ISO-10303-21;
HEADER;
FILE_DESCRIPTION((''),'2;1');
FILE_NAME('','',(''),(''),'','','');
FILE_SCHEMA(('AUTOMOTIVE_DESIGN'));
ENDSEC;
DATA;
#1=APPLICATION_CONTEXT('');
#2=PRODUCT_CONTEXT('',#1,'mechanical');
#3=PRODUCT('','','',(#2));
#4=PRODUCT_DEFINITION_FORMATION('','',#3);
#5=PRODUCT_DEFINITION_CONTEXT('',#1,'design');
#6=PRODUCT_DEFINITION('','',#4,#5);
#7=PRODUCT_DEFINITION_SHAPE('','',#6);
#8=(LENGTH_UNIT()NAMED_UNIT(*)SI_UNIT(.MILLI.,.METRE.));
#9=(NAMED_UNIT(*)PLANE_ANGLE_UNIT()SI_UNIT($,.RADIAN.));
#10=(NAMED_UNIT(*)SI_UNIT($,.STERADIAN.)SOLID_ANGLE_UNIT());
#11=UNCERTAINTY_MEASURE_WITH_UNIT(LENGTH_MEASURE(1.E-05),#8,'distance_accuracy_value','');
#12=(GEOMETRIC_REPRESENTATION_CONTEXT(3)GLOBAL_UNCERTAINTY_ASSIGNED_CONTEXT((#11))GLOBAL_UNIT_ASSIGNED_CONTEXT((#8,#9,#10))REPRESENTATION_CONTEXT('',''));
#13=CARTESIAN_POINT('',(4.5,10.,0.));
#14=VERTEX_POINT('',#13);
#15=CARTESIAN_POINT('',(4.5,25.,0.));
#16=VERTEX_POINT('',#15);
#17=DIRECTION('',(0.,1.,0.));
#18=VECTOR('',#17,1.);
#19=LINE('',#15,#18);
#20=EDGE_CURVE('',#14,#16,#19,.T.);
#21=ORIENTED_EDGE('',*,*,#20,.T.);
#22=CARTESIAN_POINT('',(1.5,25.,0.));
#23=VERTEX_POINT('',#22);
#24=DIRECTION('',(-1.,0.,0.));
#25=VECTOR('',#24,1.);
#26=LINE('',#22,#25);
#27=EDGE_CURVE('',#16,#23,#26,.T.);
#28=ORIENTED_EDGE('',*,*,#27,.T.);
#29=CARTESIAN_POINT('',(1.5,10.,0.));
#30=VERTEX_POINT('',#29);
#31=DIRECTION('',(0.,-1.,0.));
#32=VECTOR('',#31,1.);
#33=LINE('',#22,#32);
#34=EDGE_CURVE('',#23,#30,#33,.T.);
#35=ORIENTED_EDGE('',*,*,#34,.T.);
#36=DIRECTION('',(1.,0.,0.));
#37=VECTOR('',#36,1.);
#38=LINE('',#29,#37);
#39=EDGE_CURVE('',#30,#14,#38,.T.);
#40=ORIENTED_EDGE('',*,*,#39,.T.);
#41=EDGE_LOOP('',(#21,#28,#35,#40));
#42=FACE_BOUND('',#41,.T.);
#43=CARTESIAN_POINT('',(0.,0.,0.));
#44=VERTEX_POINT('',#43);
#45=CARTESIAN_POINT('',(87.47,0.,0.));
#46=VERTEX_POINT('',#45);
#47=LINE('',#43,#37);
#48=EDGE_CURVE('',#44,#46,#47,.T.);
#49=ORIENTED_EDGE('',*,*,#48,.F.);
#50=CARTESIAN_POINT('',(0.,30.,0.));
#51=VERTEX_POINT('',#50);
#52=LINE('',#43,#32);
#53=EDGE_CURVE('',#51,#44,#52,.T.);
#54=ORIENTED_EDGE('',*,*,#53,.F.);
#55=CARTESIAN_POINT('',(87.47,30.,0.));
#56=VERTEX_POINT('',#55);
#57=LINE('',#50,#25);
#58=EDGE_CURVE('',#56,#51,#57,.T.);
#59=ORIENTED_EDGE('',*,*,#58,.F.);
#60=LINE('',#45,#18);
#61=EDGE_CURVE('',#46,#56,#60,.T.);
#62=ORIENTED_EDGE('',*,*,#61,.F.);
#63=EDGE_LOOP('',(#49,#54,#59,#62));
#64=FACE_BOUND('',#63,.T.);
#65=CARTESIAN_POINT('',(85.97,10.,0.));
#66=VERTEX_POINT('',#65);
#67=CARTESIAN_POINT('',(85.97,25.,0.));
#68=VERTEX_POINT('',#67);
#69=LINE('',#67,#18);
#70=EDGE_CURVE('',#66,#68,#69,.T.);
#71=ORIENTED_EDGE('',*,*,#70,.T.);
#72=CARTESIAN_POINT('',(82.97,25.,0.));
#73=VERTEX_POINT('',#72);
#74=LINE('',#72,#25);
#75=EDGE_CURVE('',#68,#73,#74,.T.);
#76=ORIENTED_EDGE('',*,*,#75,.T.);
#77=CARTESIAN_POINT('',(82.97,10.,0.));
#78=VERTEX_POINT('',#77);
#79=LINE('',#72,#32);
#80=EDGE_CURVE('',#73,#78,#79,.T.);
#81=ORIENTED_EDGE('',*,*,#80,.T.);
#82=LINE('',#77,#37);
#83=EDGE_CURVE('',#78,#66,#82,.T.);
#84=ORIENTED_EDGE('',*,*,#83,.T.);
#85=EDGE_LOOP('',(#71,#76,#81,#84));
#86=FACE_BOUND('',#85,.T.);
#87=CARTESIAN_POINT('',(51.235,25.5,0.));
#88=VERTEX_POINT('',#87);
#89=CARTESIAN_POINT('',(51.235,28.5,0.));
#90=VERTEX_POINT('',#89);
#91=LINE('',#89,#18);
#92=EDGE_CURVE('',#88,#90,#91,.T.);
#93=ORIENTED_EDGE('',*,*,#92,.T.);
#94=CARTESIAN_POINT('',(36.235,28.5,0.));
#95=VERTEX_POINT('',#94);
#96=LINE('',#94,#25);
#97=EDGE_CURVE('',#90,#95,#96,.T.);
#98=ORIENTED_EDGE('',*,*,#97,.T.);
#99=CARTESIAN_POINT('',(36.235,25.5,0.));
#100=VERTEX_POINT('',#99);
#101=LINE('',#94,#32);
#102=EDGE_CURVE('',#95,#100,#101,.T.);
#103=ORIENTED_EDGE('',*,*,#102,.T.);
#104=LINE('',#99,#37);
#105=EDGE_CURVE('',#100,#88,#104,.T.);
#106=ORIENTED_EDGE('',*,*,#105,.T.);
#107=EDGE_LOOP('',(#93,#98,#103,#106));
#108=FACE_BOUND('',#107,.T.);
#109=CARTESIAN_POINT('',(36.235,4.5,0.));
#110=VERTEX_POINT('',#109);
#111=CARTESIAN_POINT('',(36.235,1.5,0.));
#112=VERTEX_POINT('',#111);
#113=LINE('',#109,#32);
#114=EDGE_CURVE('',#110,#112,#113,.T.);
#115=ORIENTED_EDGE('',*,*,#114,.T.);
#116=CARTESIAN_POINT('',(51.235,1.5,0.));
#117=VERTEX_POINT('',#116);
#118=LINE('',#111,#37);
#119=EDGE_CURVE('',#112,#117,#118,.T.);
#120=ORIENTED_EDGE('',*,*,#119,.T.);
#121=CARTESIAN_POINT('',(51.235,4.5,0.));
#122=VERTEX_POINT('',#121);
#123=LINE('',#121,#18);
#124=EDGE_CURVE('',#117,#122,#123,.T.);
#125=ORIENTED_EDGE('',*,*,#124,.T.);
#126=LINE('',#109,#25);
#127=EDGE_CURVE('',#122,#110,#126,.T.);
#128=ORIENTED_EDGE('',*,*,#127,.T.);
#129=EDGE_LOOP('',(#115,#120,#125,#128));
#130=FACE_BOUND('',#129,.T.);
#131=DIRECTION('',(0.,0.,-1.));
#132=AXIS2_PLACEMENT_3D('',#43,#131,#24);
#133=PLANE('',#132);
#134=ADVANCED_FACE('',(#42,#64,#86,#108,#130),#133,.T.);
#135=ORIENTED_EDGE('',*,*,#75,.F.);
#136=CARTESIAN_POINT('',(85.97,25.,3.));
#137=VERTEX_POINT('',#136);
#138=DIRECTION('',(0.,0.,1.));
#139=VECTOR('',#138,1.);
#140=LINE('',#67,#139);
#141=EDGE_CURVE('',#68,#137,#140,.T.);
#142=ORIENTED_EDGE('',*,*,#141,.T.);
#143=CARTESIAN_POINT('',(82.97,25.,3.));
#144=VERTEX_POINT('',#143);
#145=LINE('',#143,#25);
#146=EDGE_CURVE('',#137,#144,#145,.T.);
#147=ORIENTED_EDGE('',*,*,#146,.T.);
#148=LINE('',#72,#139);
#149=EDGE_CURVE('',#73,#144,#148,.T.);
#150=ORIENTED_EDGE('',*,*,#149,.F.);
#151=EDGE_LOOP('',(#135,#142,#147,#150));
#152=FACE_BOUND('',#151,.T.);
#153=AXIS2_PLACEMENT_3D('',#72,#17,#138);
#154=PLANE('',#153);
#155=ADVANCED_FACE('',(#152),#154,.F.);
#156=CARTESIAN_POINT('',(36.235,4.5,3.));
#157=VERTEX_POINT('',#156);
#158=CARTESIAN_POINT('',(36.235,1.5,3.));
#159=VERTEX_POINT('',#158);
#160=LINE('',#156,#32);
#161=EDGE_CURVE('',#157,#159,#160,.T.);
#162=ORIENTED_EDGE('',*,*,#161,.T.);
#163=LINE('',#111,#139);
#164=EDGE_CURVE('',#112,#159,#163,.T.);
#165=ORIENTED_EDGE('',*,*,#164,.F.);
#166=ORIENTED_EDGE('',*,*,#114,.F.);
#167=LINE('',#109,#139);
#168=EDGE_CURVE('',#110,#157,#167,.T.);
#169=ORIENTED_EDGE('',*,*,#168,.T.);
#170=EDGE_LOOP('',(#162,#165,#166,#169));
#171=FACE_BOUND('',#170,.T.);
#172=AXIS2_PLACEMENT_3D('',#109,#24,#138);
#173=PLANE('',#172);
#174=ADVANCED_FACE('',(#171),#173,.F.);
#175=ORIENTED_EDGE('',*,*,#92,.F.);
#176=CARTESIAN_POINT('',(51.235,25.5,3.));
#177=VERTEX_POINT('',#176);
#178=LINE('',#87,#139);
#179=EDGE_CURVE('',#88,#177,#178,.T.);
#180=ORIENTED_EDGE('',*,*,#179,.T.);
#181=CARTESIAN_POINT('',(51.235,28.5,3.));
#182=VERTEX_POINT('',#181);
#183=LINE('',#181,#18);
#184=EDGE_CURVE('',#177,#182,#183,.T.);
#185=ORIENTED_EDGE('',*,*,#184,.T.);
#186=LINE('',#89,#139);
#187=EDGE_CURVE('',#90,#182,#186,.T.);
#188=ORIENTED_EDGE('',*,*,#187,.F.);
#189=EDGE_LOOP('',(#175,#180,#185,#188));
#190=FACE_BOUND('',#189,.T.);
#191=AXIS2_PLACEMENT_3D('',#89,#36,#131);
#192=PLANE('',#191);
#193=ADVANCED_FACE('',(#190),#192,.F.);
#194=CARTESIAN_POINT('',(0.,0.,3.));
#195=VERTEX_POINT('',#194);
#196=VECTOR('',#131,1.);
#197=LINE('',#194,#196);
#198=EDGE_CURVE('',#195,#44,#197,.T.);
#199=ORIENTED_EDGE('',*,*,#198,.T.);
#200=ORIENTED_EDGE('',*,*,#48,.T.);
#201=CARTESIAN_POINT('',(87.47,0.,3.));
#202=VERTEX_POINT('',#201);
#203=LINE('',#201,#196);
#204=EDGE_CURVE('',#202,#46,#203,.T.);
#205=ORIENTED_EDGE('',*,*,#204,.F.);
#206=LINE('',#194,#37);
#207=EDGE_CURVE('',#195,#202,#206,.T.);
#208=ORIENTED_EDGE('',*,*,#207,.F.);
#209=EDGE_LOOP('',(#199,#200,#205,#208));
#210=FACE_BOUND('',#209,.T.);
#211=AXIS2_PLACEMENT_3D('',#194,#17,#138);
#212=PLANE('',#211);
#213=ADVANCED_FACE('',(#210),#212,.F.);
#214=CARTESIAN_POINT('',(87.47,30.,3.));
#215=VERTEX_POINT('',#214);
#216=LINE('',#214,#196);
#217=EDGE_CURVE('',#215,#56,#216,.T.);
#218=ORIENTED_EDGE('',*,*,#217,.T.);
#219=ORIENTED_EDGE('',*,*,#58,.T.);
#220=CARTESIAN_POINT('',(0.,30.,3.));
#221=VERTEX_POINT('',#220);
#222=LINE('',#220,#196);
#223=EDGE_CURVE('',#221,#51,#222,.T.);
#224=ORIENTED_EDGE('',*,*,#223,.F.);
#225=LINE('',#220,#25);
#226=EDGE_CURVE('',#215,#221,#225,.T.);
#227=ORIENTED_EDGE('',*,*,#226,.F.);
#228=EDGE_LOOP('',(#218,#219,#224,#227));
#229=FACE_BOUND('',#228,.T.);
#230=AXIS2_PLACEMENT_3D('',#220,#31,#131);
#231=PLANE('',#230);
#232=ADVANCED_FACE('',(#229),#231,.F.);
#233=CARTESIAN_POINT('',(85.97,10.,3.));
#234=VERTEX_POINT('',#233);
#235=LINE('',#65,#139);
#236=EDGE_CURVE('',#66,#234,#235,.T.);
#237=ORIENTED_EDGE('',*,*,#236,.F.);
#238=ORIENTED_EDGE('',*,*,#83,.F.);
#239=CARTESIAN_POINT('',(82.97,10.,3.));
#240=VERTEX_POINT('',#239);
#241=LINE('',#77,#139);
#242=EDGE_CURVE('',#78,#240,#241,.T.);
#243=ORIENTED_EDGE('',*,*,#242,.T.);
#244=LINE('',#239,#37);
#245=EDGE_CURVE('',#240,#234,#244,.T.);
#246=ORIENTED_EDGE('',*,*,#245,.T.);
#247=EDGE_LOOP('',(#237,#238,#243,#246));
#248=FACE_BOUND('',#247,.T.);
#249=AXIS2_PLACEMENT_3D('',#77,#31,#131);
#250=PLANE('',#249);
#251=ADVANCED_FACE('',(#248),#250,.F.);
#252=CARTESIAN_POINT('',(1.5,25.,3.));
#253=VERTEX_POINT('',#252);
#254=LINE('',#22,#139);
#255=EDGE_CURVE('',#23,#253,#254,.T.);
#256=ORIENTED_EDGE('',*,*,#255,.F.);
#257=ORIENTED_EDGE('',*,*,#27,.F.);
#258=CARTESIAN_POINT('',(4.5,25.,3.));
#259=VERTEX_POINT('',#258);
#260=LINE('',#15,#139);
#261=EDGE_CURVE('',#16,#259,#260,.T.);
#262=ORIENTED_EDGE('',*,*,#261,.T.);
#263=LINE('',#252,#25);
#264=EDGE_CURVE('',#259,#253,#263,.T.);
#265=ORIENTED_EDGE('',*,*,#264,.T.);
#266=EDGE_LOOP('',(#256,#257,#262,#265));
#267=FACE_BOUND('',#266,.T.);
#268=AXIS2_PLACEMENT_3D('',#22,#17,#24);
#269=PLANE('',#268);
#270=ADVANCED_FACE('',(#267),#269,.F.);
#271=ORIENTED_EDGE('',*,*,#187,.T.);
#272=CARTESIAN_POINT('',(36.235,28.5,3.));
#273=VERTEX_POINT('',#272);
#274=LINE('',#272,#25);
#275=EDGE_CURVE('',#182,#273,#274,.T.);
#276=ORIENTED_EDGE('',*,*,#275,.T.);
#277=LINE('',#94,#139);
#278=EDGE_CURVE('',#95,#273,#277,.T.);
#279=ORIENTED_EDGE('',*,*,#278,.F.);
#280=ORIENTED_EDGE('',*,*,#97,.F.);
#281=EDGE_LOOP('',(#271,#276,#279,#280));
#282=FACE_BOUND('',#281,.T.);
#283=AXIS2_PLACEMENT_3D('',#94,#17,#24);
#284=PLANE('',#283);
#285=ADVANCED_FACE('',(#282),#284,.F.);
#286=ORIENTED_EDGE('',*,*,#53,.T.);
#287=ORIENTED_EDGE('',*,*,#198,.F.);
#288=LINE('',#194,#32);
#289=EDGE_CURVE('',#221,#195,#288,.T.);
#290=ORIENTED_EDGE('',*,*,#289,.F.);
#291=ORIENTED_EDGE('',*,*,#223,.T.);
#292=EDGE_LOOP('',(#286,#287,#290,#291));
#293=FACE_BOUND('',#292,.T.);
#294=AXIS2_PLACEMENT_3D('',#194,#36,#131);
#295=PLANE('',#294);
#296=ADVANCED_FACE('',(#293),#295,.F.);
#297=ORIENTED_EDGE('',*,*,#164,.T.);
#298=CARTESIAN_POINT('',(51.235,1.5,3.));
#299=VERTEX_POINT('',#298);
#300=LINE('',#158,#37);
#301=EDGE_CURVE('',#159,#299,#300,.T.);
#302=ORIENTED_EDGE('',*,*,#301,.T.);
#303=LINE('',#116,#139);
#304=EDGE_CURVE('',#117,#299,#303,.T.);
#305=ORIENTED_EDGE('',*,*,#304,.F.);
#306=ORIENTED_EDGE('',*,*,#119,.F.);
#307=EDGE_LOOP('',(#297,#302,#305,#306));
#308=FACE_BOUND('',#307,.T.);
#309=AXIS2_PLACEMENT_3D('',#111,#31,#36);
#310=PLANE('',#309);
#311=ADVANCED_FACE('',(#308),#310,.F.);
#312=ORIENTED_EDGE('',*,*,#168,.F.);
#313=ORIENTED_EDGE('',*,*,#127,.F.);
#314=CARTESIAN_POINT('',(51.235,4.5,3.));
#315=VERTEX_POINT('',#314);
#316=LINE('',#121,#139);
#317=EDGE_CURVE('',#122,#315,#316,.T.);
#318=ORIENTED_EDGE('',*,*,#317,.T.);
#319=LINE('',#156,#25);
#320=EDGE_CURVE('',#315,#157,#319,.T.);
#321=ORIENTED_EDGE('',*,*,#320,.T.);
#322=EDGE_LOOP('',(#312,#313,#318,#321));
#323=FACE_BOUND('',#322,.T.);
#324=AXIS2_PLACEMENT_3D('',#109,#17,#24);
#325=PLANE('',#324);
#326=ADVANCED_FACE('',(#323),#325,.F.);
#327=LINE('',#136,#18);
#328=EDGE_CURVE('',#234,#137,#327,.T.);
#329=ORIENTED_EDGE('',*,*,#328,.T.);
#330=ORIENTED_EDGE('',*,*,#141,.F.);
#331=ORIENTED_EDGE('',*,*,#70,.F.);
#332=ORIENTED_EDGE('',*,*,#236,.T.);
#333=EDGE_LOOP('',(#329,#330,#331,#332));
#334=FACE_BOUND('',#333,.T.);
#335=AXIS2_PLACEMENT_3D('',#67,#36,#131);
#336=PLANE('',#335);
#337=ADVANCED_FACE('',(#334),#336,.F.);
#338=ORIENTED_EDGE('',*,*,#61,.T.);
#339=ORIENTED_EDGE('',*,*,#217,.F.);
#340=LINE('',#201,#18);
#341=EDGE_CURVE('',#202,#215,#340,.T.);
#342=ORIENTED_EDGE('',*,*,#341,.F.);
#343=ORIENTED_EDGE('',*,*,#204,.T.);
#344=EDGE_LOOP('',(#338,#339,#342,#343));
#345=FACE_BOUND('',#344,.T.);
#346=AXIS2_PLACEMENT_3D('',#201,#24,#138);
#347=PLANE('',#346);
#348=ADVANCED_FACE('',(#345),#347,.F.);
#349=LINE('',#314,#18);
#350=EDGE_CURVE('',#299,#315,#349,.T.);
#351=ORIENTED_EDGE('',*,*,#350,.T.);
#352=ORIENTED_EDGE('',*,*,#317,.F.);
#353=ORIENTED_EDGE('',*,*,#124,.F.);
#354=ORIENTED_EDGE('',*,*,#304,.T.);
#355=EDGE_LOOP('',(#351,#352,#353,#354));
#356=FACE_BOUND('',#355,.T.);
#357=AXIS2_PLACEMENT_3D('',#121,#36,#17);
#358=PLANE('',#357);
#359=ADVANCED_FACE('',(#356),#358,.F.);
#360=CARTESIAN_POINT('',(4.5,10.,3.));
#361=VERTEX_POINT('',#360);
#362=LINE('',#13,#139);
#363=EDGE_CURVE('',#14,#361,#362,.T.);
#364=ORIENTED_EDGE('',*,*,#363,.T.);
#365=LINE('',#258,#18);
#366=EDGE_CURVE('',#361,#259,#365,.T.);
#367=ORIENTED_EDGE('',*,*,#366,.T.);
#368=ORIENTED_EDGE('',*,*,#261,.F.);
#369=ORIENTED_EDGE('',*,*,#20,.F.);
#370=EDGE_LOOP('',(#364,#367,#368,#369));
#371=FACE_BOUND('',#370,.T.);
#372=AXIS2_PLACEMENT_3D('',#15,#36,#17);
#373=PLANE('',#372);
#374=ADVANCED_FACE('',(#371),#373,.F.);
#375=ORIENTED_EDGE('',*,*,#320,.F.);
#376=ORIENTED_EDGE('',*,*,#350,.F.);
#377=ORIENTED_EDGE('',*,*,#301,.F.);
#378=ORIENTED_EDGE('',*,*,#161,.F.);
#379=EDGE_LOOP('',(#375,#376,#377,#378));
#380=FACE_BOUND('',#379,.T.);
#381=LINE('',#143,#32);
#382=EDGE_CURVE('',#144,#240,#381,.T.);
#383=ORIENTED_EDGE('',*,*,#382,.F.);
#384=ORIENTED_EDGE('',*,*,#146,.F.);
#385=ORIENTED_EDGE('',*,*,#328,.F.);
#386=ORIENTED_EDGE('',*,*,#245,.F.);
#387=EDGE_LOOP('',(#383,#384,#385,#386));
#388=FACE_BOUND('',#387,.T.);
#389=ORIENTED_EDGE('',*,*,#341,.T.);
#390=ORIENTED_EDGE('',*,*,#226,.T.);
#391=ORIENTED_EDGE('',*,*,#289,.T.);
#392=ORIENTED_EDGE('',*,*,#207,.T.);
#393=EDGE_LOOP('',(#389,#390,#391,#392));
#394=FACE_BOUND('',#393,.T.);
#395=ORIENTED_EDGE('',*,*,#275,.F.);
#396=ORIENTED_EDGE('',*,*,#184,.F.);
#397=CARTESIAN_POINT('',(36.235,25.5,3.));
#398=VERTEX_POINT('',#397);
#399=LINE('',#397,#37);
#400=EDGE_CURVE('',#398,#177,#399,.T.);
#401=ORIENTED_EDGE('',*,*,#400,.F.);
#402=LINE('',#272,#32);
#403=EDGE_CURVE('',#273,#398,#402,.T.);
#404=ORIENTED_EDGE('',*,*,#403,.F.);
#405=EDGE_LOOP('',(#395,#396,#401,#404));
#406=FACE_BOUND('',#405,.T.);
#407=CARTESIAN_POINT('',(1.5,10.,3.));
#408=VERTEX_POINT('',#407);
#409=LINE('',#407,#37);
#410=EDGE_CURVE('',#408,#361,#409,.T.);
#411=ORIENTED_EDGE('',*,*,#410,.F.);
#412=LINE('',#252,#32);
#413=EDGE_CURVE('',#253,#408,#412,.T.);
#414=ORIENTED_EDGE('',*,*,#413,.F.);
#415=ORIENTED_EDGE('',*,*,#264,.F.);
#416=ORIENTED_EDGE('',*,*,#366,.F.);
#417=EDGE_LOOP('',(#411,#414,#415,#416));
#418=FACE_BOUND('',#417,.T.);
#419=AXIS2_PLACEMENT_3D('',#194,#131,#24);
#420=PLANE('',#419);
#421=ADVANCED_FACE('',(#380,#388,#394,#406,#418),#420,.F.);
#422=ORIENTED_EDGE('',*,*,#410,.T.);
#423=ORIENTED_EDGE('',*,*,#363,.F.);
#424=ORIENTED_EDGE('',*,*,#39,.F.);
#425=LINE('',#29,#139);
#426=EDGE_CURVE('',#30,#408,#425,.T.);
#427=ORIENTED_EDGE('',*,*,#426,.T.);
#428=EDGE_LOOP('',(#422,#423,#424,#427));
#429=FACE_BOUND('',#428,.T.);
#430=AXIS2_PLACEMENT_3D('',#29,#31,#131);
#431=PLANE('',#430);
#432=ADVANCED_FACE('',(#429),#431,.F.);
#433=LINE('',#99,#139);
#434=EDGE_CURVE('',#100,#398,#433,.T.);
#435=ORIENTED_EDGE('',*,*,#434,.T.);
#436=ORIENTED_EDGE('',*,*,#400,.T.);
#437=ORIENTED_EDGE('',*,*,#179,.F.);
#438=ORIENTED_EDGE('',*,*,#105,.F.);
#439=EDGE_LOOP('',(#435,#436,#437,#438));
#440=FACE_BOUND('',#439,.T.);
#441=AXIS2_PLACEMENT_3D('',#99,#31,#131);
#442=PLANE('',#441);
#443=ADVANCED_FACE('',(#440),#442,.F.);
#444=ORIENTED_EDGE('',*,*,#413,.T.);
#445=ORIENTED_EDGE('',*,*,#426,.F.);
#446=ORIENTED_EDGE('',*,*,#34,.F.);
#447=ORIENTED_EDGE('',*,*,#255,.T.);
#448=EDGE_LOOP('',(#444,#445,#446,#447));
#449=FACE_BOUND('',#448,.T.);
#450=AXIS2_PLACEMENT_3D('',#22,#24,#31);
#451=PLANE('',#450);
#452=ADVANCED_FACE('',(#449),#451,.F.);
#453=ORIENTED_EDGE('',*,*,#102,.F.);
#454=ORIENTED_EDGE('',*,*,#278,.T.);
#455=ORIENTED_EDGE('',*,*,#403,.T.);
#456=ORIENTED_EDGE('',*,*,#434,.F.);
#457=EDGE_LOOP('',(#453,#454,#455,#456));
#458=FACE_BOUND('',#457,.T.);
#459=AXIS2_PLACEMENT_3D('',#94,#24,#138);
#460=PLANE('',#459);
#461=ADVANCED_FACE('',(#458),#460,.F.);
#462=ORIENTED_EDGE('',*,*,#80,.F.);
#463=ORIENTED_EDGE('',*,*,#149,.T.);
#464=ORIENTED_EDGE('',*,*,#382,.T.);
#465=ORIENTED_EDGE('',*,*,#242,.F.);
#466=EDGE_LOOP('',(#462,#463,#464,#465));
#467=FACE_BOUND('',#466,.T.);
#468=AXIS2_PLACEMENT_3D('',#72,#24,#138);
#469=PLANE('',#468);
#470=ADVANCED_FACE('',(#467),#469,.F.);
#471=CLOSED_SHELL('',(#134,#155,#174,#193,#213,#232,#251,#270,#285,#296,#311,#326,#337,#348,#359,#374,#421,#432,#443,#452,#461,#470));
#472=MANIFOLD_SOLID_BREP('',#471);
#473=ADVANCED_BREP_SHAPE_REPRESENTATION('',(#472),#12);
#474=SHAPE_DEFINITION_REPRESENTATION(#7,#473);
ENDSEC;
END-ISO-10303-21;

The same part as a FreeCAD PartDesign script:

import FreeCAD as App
import Part
import Sketcher
from FreeCAD import Vector
Q = App.Units.Quantity

doc = App.newDocument("Part")
body = doc.addObject("PartDesign::Body", "Body")

sketch1 = body.newObject("Sketcher::SketchObject", "Sketch")
sketch1.AttachmentSupport = (doc.getObject("XY_Plane"), [""])
sketch1.MapMode = "FlatFace"
sketch1.addGeometry([
    Part.LineSegment(Vector(0, 30, 0), Vector(0, 0, 0)),
    Part.LineSegment(Vector(0, 0, 0), Vector(87, 0, 0)),
    Part.LineSegment(Vector(87, 0, 0), Vector(87, 30, 0)),
    Part.LineSegment(Vector(87, 30, 0), Vector(0, 30, 0)),
], False)
sketch1.addConstraint([
    Sketcher.Constraint("Coincident", 0, 2, 1, 1),
    Sketcher.Constraint("Coincident", 1, 2, 2, 1),
    Sketcher.Constraint("Coincident", 2, 2, 3, 1),
    Sketcher.Constraint("Coincident", 3, 2, 0, 1),
    Sketcher.Constraint("Vertical", 0),
    Sketcher.Constraint("Horizontal", 1),
    Sketcher.Constraint("Vertical", 2),
    Sketcher.Constraint("Horizontal", 3),
    Sketcher.Constraint("Coincident", 0, 2, -1, 1),
    Sketcher.Constraint("DistanceY", 0, 2, 0, 1, Q("30 mm")),
    Sketcher.Constraint("DistanceX", 1, 1, 1, 2, Q("87.47 mm")),
])
pad1 = body.newObject("PartDesign::Pad", "Pad")
pad1.Profile = sketch1
pad1.Length = 3

sketch2 = body.newObject("Sketcher::SketchObject", "Sketch001")
sketch2.AttachmentSupport = (doc.getObject("XY_Plane"), [""])
sketch2.MapMode = "FlatFace"
sketch2.AttachmentOffset = App.Placement(Vector(0, 0, 3), App.Rotation())
sketch2.addGeometry([
    Part.LineSegment(Vector(36.2, 28.5, 0), Vector(36.2, 25.5, 0)),
    Part.LineSegment(Vector(36.2, 25.5, 0), Vector(51.2, 25.5, 0)),
    Part.LineSegment(Vector(51.2, 25.5, 0), Vector(51.2, 28.5, 0)),
    Part.LineSegment(Vector(51.2, 28.5, 0), Vector(36.2, 28.5, 0)),
    Part.LineSegment(Vector(36.2, 4.5, 0), Vector(36.2, 1.5, 0)),
    Part.LineSegment(Vector(36.2, 1.5, 0), Vector(51.2, 1.5, 0)),
    Part.LineSegment(Vector(51.2, 1.5, 0), Vector(51.2, 4.5, 0)),
    Part.LineSegment(Vector(51.2, 4.5, 0), Vector(36.2, 4.5, 0)),
    Part.LineSegment(Vector(1.5, 25, 0), Vector(1.5, 10, 0)),
    Part.LineSegment(Vector(1.5, 10, 0), Vector(4.5, 10, 0)),
    Part.LineSegment(Vector(4.5, 10, 0), Vector(4.5, 25, 0)),
    Part.LineSegment(Vector(4.5, 25, 0), Vector(1.5, 25, 0)),
    Part.LineSegment(Vector(83, 25, 0), Vector(83, 10, 0)),
    Part.LineSegment(Vector(83, 10, 0), Vector(86, 10, 0)),
    Part.LineSegment(Vector(86, 10, 0), Vector(86, 25, 0)),
    Part.LineSegment(Vector(86, 25, 0), Vector(83, 25, 0)),
], False)
sketch2.addConstraint([
    Sketcher.Constraint("Coincident", 0, 2, 1, 1),
    Sketcher.Constraint("Coincident", 1, 2, 2, 1),
    Sketcher.Constraint("Coincident", 2, 2, 3, 1),
    Sketcher.Constraint("Coincident", 3, 2, 0, 1),
    Sketcher.Constraint("Coincident", 4, 2, 5, 1),
    Sketcher.Constraint("Coincident", 5, 2, 6, 1),
    Sketcher.Constraint("Coincident", 6, 2, 7, 1),
    Sketcher.Constraint("Coincident", 7, 2, 4, 1),
    Sketcher.Constraint("Coincident", 8, 2, 9, 1),
    Sketcher.Constraint("Coincident", 9, 2, 10, 1),
    Sketcher.Constraint("Coincident", 10, 2, 11, 1),
    Sketcher.Constraint("Coincident", 11, 2, 8, 1),
    Sketcher.Constraint("Coincident", 12, 2, 13, 1),
    Sketcher.Constraint("Coincident", 13, 2, 14, 1),
    Sketcher.Constraint("Coincident", 14, 2, 15, 1),
    Sketcher.Constraint("Coincident", 15, 2, 12, 1),
    Sketcher.Constraint("Vertical", 0),
    Sketcher.Constraint("Horizontal", 1),
    Sketcher.Constraint("Vertical", 2),
    Sketcher.Constraint("Horizontal", 3),
    Sketcher.Constraint("Vertical", 4),
    Sketcher.Constraint("Horizontal", 5),
    Sketcher.Constraint("Vertical", 6),
    Sketcher.Constraint("Horizontal", 7),
    Sketcher.Constraint("Vertical", 8),
    Sketcher.Constraint("Horizontal", 9),
    Sketcher.Constraint("Vertical", 10),
    Sketcher.Constraint("Horizontal", 11),
    Sketcher.Constraint("Vertical", 12),
    Sketcher.Constraint("Horizontal", 13),
    Sketcher.Constraint("Vertical", 14),
    Sketcher.Constraint("Horizontal", 15),
    Sketcher.Constraint("Horizontal", 9, 2, 12, 2),
    Sketcher.Constraint("Horizontal", 11, 2, 14, 2),
    Sketcher.Constraint("Vertical", 3, 2, 4, 2),
    Sketcher.Constraint("Vertical", 2, 2, 5, 2),
    Sketcher.Constraint("Equal", 11, 13),
    Sketcher.Constraint("Equal", 15, 0),
    Sketcher.Constraint("Equal", 2, 4),
    Sketcher.Constraint("Equal", 7, 8),
    Sketcher.Constraint("DistanceX", 1, 1, 1, 2, Q("15 mm")),
    Sketcher.Constraint("DistanceX", 9, 1, 9, 2, Q("3 mm")),
    Sketcher.Constraint("DistanceY", -1, 1, 8, 2, Q("10 mm")),
    Sketcher.Constraint("DistanceY", 4, 2, 0, 2, Q("24 mm")),
    Sketcher.Constraint("DistanceY", -1, 1, 0, 2, Q("25.5 mm")),
    Sketcher.Constraint("DistanceX", -1, 1, 8, 2, Q("1.5 mm")),
    Sketcher.Constraint("DistanceX", -1, 1, 12, 2, Q("82.97 mm")),
    Sketcher.Constraint("DistanceX", -1, 1, 0, 2, Q("36.235 mm")),
])
pocket1 = body.newObject("PartDesign::Pocket", "Pocket")
pocket1.Profile = sketch2
pocket1.Length = 3

doc.recompute()
